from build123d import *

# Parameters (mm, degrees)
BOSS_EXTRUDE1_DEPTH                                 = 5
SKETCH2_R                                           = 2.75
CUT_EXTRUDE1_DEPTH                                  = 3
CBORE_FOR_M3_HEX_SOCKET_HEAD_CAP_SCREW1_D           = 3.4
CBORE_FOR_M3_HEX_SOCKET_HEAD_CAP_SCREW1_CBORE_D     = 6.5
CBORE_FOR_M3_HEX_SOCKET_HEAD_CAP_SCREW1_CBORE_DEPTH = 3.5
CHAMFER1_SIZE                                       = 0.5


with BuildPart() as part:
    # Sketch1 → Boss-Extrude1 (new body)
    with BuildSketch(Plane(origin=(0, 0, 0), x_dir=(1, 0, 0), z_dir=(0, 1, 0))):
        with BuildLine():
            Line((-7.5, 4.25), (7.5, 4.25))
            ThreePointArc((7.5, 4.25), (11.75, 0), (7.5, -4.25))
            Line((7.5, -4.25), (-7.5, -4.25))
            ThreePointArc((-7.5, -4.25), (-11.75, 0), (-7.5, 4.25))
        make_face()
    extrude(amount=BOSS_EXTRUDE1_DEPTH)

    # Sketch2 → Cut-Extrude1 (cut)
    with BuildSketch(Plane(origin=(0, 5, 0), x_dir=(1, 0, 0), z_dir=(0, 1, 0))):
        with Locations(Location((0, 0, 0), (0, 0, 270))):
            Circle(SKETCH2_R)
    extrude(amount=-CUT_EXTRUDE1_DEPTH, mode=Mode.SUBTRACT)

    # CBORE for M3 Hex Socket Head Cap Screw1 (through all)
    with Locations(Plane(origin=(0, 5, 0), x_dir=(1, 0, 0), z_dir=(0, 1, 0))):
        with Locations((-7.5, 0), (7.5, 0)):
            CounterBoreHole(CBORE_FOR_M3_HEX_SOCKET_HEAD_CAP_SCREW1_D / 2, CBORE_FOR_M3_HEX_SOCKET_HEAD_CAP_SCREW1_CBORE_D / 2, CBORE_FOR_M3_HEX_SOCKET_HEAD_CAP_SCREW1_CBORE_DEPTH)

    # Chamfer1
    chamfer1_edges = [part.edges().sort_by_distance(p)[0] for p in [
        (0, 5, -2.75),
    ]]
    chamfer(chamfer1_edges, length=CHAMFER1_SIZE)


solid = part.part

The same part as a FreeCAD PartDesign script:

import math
import FreeCAD as App
import Part
import Sketcher

V = App.Vector
Q = App.Units.Quantity


def edges_at(feature, points):
    """Names of the edges that pass closest to the given points."""
    edges = feature.Shape.Edges
    near = lambda p: min(range(len(edges)), key=lambda i: edges[i].distToShape(Part.Vertex(*p))[0])
    return sorted({f"Edge{near(p) + 1}" for p in points})

doc = App.newDocument("Part")
body = doc.addObject("PartDesign::Body", "Body")

sketch1 = body.newObject("Sketcher::SketchObject", "Sketch")
sketch1.AttachmentSupport = (doc.getObject("XZ_Plane"), [""])
sketch1.MapMode = "FlatFace"
sketch1.addGeometry(Part.LineSegment(V(7.5, -4.2, 0), V(-7.5, -4.2, 0)), False)
sketch1.addGeometry(Part.ArcOfCircle(Part.Circle(V(-7.5, 0, 0), V(0, 0, 1), 4.2), math.radians(90), math.radians(270)), False)
sketch1.addGeometry(Part.LineSegment(V(-7.5, 4.2, 0), V(7.5, 4.2, 0)), False)
sketch1.addGeometry(Part.ArcOfCircle(Part.Circle(V(7.5, 0, 0), V(0, 0, 1), 4.2), math.radians(-90), math.radians(90)), False)
sketch1.addConstraint(Sketcher.Constraint("Tangent", 0, 2, 1, 2))
sketch1.addConstraint(Sketcher.Constraint("Tangent", 1, 1, 2, 1))
sketch1.addConstraint(Sketcher.Constraint("Tangent", 2, 2, 3, 2))
sketch1.addConstraint(Sketcher.Constraint("Tangent", 3, 1, 0, 1))
sketch1.addConstraint(Sketcher.Constraint("Horizontal", 0))
sketch1.addConstraint(Sketcher.Constraint("Horizontal", 2))
sketch1.addConstraint(Sketcher.Constraint("Symmetric", 1, 3, 3, 3, -1, 1))
sketch1.addConstraint(Sketcher.Constraint("DistanceX", 0, 2, 0, 1, Q("15 mm")))
sketch1.addConstraint(Sketcher.Constraint("Radius", 1, Q("4.25 mm")))
pad1 = body.newObject("PartDesign::Pad", "Pad")
pad1.Profile = sketch1
pad1.Length = 5
pad1.Reversed = True

sketch2 = body.newObject("Sketcher::SketchObject", "Sketch001")
sketch2.AttachmentSupport = (doc.getObject("XZ_Plane"), [""])
sketch2.MapMode = "FlatFace"
sketch2.AttachmentOffset = App.Placement(V(0, 0, -5), App.Rotation())
sketch2.addGeometry(Part.Circle(V(0, 0, 0), V(0, 0, 1), 2.8), False)
sketch2.addConstraint(Sketcher.Constraint("Coincident", 0, 3, -1, 1))
sketch2.addConstraint(Sketcher.Constraint("Diameter", 0, Q("5.5 mm")))
pocket1 = body.newObject("PartDesign::Pocket", "Pocket")
pocket1.Profile = sketch2
pocket1.Length = 3
pocket1.Reversed = True

sketch3 = body.newObject("Sketcher::SketchObject", "Sketch002")
sketch3.AttachmentSupport = (doc.getObject("XZ_Plane"), [""])
sketch3.MapMode = "FlatFace"
sketch3.AttachmentOffset = App.Placement(V(0, 0, -5), App.Rotation())
sketch3.addGeometry(Part.Circle(V(-7.5, 0, 0), V(0, 0, 1), 1.7), False)
sketch3.addGeometry(Part.Circle(V(7.5, 0, 0), V(0, 0, 1), 1.7), False)
sketch3.addConstraint(Sketcher.Constraint("Equal", 0, 1))
sketch3.addConstraint(Sketcher.Constraint("Symmetric", 0, 3, 1, 3, -1, 1))
sketch3.addConstraint(Sketcher.Constraint("PointOnObject", 0, 3, -1))
sketch3.addConstraint(Sketcher.Constraint("Diameter", 0, Q("3.4 mm")))
sketch3.addConstraint(Sketcher.Constraint("DistanceX", 0, 3, 1, 3, Q("15 mm")))
doc.recompute()
hole = body.newObject("PartDesign::Hole", "Hole")
hole.Profile = sketch3
hole.ThreadType = "None"
hole.Diameter = 3.4
hole.DepthType = "ThroughAll"
hole.HoleCutType = "Counterbore"
hole.HoleCutDiameter = 6.5
hole.HoleCutDepth = 3.5
hole.Reversed = True
doc.recompute()

chamfer = body.newObject("PartDesign::Chamfer", "Chamfer")
chamfer.Base = (hole, edges_at(hole, [(0, 5, -2.75)]))
chamfer.Size = 0.5

doc.recompute()
